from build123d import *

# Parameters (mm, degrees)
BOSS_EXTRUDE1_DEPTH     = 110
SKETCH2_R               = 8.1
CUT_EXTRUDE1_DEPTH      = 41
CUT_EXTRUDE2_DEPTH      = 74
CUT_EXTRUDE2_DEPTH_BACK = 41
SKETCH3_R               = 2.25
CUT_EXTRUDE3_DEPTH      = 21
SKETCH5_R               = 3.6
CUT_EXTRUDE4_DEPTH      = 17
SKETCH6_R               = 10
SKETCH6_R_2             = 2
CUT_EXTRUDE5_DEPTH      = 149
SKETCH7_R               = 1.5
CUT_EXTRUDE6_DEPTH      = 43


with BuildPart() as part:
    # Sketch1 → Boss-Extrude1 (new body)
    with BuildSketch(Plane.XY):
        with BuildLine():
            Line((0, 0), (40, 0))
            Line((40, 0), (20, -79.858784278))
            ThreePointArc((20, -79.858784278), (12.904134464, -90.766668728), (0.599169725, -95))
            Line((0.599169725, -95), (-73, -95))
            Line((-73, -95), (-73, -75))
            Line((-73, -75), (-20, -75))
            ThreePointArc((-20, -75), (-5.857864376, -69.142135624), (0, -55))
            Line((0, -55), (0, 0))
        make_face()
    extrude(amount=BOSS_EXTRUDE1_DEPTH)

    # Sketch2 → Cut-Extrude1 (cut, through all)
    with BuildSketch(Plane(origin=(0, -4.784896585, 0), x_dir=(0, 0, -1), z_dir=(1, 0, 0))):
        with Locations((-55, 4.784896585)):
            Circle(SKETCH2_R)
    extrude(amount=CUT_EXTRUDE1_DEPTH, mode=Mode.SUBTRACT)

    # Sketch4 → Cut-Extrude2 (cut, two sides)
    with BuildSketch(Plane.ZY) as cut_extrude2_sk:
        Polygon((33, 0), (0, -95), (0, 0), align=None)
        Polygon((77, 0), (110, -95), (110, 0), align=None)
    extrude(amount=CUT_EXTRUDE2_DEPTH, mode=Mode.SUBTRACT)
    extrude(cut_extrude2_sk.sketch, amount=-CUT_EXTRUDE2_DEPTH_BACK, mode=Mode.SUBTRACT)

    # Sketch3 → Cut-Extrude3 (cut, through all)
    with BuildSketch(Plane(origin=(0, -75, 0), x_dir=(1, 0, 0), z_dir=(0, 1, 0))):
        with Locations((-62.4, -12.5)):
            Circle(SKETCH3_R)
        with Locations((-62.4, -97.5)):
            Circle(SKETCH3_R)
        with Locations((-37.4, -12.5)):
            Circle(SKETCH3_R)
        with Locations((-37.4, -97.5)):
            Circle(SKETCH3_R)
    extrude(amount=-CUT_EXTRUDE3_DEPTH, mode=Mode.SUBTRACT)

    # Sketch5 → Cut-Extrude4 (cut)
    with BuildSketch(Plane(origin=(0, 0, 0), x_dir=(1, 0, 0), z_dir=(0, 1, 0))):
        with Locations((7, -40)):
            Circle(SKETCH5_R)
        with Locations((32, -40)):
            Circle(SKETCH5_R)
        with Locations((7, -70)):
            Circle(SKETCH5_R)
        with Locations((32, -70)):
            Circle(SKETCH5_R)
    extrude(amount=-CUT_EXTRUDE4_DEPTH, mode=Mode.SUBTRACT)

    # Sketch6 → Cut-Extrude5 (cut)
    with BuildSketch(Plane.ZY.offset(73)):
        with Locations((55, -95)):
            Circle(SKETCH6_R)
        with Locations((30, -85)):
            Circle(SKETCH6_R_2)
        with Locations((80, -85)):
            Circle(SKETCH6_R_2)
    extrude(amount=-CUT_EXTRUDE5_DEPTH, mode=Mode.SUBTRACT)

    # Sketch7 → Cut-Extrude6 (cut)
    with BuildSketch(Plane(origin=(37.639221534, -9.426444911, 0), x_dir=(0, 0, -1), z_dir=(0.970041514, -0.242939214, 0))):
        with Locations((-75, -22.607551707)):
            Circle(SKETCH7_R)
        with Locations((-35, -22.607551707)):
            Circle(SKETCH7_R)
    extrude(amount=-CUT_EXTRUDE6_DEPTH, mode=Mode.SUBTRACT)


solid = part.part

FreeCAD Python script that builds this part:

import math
import FreeCAD as App
import Part
import Sketcher
from FreeCAD import Vector
Q = App.Units.Quantity

doc = App.newDocument("Part")
params = doc.addObject("Spreadsheet::Sheet", "Params")
for row, (alias, value) in enumerate([
    ("sketch1_radius", "20 mm"),
    ("sketch1_width", "40 mm"),
    ("sketch1_width2", "53 mm"),
    ("sketch1_height", "55 mm"),
    ("pad1_length", "110 mm"),
    ("sketch2_diameter", "16.2 mm"),
    ("sketch3_width", "95 mm"),
    ("sketch3_height", "33 mm"),
    ("sketch4_diameter", "4.5 mm"),
    ("sketch5_diameter", "7.2 mm"),
    ("pocket4_length", "17 mm"),
    ("sketch6_diameter", "20 mm"),
    ("sketch6_diameter2", "4 mm"),
    ("pocket5_length", "149 mm"),
    ("sketch7_diameter", "3 mm"),
    ("pocket6_length", "43 mm"),
], start=1):
    params.set(f"A{row}", alias)
    params.set(f"B{row}", "=" + value)
    params.setAlias(f"B{row}", alias)

body = doc.addObject("PartDesign::Body", "Body")

sketch1 = doc.addObject("Sketcher::SketchObject", "Sketch")
body.addObject(sketch1)
sketch1.AttachmentSupport = (doc.XY_Plane, [""])
sketch1.MapMode = "FlatFace"
sketch1.addGeometry(Part.LineSegment(Vector(40, 0, 0), Vector(0, 0, 0)), False)
sketch1.addGeometry(Part.LineSegment(Vector(0, 0, 0), Vector(0, -55, 0)), False)
sketch1.addGeometry(Part.ArcOfCircle(Part.Circle(Vector(-20, -55, 0), Vector(0, 0, 1), 20), math.radians(-90), math.radians(0)), False)
sketch1.addGeometry(Part.LineSegment(Vector(-20, -75, 0), Vector(-73, -75, 0)), False)
sketch1.addGeometry(Part.LineSegment(Vector(-73, -75, 0), Vector(-73, -95, 0)), False)
sketch1.addGeometry(Part.LineSegment(Vector(-73, -95, 0), Vector(1, -95, 0)), False)
sketch1.addGeometry(Part.ArcOfCircle(Part.Circle(Vector(1, -75, 0), Vector(0, 0, 1), 20), math.radians(-90), math.radians(-14)), False)
sketch1.addGeometry(Part.LineSegment(Vector(20, -80, 0), Vector(40, 0, 0)), False)
sketch1.addConstraint(Sketcher.Constraint("Coincident", 0, 2, 1, 1))
sketch1.addConstraint(Sketcher.Constraint("Tangent", 1, 2, 2, 2))
sketch1.addConstraint(Sketcher.Constraint("Tangent", 2, 1, 3, 1))
sketch1.addConstraint(Sketcher.Constraint("Coincident", 3, 2, 4, 1))
sketch1.addConstraint(Sketcher.Constraint("Coincident", 4, 2, 5, 1))
sketch1.addConstraint(Sketcher.Constraint("Tangent", 5, 2, 6, 1))
sketch1.addConstraint(Sketcher.Constraint("Tangent", 6, 2, 7, 1))
sketch1.addConstraint(Sketcher.Constraint("Coincident", 7, 2, 0, 1))
sketch1.addConstraint(Sketcher.Constraint("Horizontal", 0))
sketch1.addConstraint(Sketcher.Constraint("Vertical", 1))
sketch1.addConstraint(Sketcher.Constraint("Horizontal", 3))
sketch1.addConstraint(Sketcher.Constraint("Vertical", 4))
sketch1.addConstraint(Sketcher.Constraint("Horizontal", 5))
sketch1.addConstraint(Sketcher.Constraint("Coincident", 0, 2, -1, 1))
sketch1.addConstraint(Sketcher.Constraint("Equal", 2, 6))
sketch1.addConstraint(Sketcher.Constraint("Horizontal", 6, 3, 2, 1))
sketch1.addConstraint(Sketcher.Constraint("Radius", 2, Q("20 mm")))
sketch1.addConstraint(Sketcher.Constraint("DistanceX", 0, 2, 0, 1, Q("40 mm")))
sketch1.addConstraint(Sketcher.Constraint("DistanceX", 3, 2, 3, 1, Q("53 mm")))
sketch1.addConstraint(Sketcher.Constraint("DistanceY", 1, 2, 1, 1, Q("55 mm")))
sketch1.addConstraint(Sketcher.Constraint("DistanceX", -1, 1, 6, 2, Q("20 mm")))
sketch1.setExpression("Constraints[16]", "Params.sketch1_radius")
sketch1.setExpression("Constraints[17]", "Params.sketch1_width")
sketch1.setExpression("Constraints[18]", "Params.sketch1_width2")
sketch1.setExpression("Constraints[19]", "Params.sketch1_height")
pad1 = doc.addObject("PartDesign::Pad", "Pad")
body.addObject(pad1)
pad1.Profile = sketch1
pad1.setExpression("Length", "Params.pad1_length")

sketch2 = doc.addObject("Sketcher::SketchObject", "Sketch001")
body.addObject(sketch2)
sketch2.AttachmentSupport = (doc.YZ_Plane, [""])
sketch2.MapMode = "FlatFace"
sketch2.addGeometry(Part.Circle(Vector(0, 55, 0), Vector(0, 0, 1), 8), False)
sketch2.addConstraint(Sketcher.Constraint("PointOnObject", 0, 3, -2))
sketch2.addConstraint(Sketcher.Constraint("Diameter", 0, Q("16.2 mm")))
sketch2.addConstraint(Sketcher.Constraint("DistanceY", -1, 1, 0, 3, Q("55 mm")))
sketch2.setExpression("Constraints[1]", "Params.sketch2_diameter")
pocket1 = doc.addObject("PartDesign::Pocket", "Pocket")
body.addObject(pocket1)
pocket1.Profile = sketch2
pocket1.Type = "ThroughAll"
pocket1.Reversed = True

sketch3 = doc.addObject("Sketcher::SketchObject", "Sketch002")
body.addObject(sketch3)
sketch3.AttachmentSupport = (doc.YZ_Plane, [""])
sketch3.MapMode = "FlatFace"
sketch3.addGeometry(Part.LineSegment(Vector(-95, 0, 0), Vector(0, 33, 0)), False)
sketch3.addGeometry(Part.LineSegment(Vector(0, 33, 0), Vector(0, 0, 0)), False)
sketch3.addGeometry(Part.LineSegment(Vector(0, 0, 0), Vector(-95, 0, 0)), False)
sketch3.addGeometry(Part.LineSegment(Vector(0, 77, 0), Vector(-95, 110, 0)), False)
sketch3.addGeometry(Part.LineSegment(Vector(-95, 110, 0), Vector(0, 110, 0)), False)
sketch3.addGeometry(Part.LineSegment(Vector(0, 110, 0), Vector(0, 77, 0)), False)
sketch3.addConstraint(Sketcher.Constraint("Coincident", 0, 2, 1, 1))
sketch3.addConstraint(Sketcher.Constraint("Coincident", 1, 2, 2, 1))
sketch3.addConstraint(Sketcher.Constraint("Coincident", 2, 2, 0, 1))
sketch3.addConstraint(Sketcher.Constraint("Coincident", 3, 2, 4, 1))
sketch3.addConstraint(Sketcher.Constraint("Coincident", 4, 2, 5, 1))
sketch3.addConstraint(Sketcher.Constraint("Coincident", 5, 2, 3, 1))
sketch3.addConstraint(Sketcher.Constraint("Vertical", 1))
sketch3.addConstraint(Sketcher.Constraint("Horizontal", 2))
sketch3.addConstraint(Sketcher.Constraint("Horizontal", 4))
sketch3.addConstraint(Sketcher.Constraint("Vertical", 5))
sketch3.addConstraint(Sketcher.Constraint("Coincident", 1, 2, -1, 1))
sketch3.addConstraint(Sketcher.Constraint("PointOnObject", 4, 2, -2))
sketch3.addConstraint(Sketcher.Constraint("Vertical", 2, 2, 3, 2))
sketch3.addConstraint(Sketcher.Constraint("Equal", 1, 5))
sketch3.addConstraint(Sketcher.Constraint("DistanceX", 2, 2, 2, 1, Q("95 mm")))
sketch3.addConstraint(Sketcher.Constraint("DistanceY", 1, 2, 1, 1, Q("33 mm")))
sketch3.addConstraint(Sketcher.Constraint("DistanceY", -1, 1, 3, 2, Q("110 mm")))
sketch3.setExpression("Constraints[14]", "Params.sketch3_width")
sketch3.setExpression("Constraints[15]", "Params.sketch3_height")
pocket2 = doc.addObject("PartDesign::Pocket", "Pocket001")
body.addObject(pocket2)
pocket2.Profile = sketch3
pocket2.Type = "ThroughAll"
pocket2.Midplane = True

sketch4 = doc.addObject("Sketcher::SketchObject", "Sketch003")
body.addObject(sketch4)
sketch4.AttachmentSupport = (doc.XZ_Plane, [""])
sketch4.MapMode = "FlatFace"
sketch4.AttachmentOffset = App.Placement(Vector(0, 0, 75), App.Rotation())
sketch4.addGeometry(Part.Circle(Vector(-62.4, 12.5, 0), Vector(0, 0, 1), 2.2), False)
sketch4.addGeometry(Part.Circle(Vector(-62.4, 97.5, 0), Vector(0, 0, 1), 2.2), False)
sketch4.addGeometry(Part.Circle(Vector(-37.4, 12.5, 0), Vector(0, 0, 1), 2.2), False)
sketch4.addGeometry(Part.Circle(Vector(-37.4, 97.5, 0), Vector(0, 0, 1), 2.2), False)
sketch4.addConstraint(Sketcher.Constraint("Equal", 0, 1))
sketch4.addConstraint(Sketcher.Constraint("Equal", 1, 2))
sketch4.addConstraint(Sketcher.Constraint("Equal", 2, 3))
sketch4.addConstraint(Sketcher.Constraint("Horizontal", 0, 3, 2, 3))
sketch4.addConstraint(Sketcher.Constraint("Horizontal", 1, 3, 3, 3))
sketch4.addConstraint(Sketcher.Constraint("Vertical", 0, 3, 1, 3))
sketch4.addConstraint(Sketcher.Constraint("Vertical", 2, 3, 3, 3))
sketch4.addConstraint(Sketcher.Constraint("Diameter", 0, Q("4.5 mm")))
sketch4.addConstraint(Sketcher.Constraint("DistanceY", 0, 3, 1, 3, Q("85 mm")))
sketch4.addConstraint(Sketcher.Constraint("DistanceX", 0, 3, 2, 3, Q("25 mm")))
sketch4.addConstraint(Sketcher.Constraint("DistanceX", 0, 3, -1, 1, Q("62.4 mm")))
sketch4.addConstraint(Sketcher.Constraint("DistanceY", -1, 1, 0, 3, Q("12.5 mm")))
sketch4.setExpression("Constraints[7]", "Params.sketch4_diameter")
pocket3 = doc.addObject("PartDesign::Pocket", "Pocket002")
body.addObject(pocket3)
pocket3.Profile = sketch4
pocket3.Type = "ThroughAll"
pocket3.Reversed = True

sketch5 = doc.addObject("Sketcher::SketchObject", "Sketch004")
body.addObject(sketch5)
sketch5.AttachmentSupport = (doc.XZ_Plane, [""])
sketch5.MapMode = "FlatFace"
sketch5.addGeometry(Part.Circle(Vector(7, 40, 0), Vector(0, 0, 1), 3.6), False)
sketch5.addGeometry(Part.Circle(Vector(32, 40, 0), Vector(0, 0, 1), 3.6), False)
sketch5.addGeometry(Part.Circle(Vector(7, 70, 0), Vector(0, 0, 1), 3.6), False)
sketch5.addGeometry(Part.Circle(Vector(32, 70, 0), Vector(0, 0, 1), 3.6), False)
sketch5.addConstraint(Sketcher.Constraint("Equal", 0, 1))
sketch5.addConstraint(Sketcher.Constraint("Equal", 1, 2))
sketch5.addConstraint(Sketcher.Constraint("Equal", 2, 3))
sketch5.addConstraint(Sketcher.Constraint("Horizontal", 0, 3, 1, 3))
sketch5.addConstraint(Sketcher.Constraint("Horizontal", 2, 3, 3, 3))
sketch5.addConstraint(Sketcher.Constraint("Vertical", 0, 3, 2, 3))
sketch5.addConstraint(Sketcher.Constraint("Vertical", 1, 3, 3, 3))
sketch5.addConstraint(Sketcher.Constraint("Diameter", 0, Q("7.2 mm")))
sketch5.addConstraint(Sketcher.Constraint("DistanceX", -1, 1, 0, 3, Q("7 mm")))
sketch5.addConstraint(Sketcher.Constraint("DistanceY", -1, 1, 0, 3, Q("40 mm")))
sketch5.addConstraint(Sketcher.Constraint("DistanceX", -1, 1, 1, 3, Q("32 mm")))
sketch5.addConstraint(Sketcher.Constraint("DistanceY", -1, 1, 2, 3, Q("70 mm")))
sketch5.setExpression("Constraints[7]", "Params.sketch5_diameter")
pocket4 = doc.addObject("PartDesign::Pocket", "Pocket003")
body.addObject(pocket4)
pocket4.Profile = sketch5
pocket4.setExpression("Length", "Params.pocket4_length")
pocket4.Reversed = True

sketch6 = doc.addObject("Sketcher::SketchObject", "Sketch005")
body.addObject(sketch6)
sketch6.AttachmentSupport = (doc.YZ_Plane, [""])
sketch6.MapMode = "FlatFace"
sketch6.AttachmentOffset = App.Placement(Vector(0, 0, -73), App.Rotation())
sketch6.addGeometry(Part.Circle(Vector(-95, 55, 0), Vector(0, 0, 1), 10), False)
sketch6.addGeometry(Part.Circle(Vector(-85, 30, 0), Vector(0, 0, 1), 2), False)
sketch6.addGeometry(Part.Circle(Vector(-85, 80, 0), Vector(0, 0, 1), 2), False)
sketch6.addConstraint(Sketcher.Constraint("Equal", 1, 2))
sketch6.addConstraint(Sketcher.Constraint("Vertical", 1, 3, 2, 3))
sketch6.addConstraint(Sketcher.Constraint("Diameter", 0, Q("20 mm")))
sketch6.addConstraint(Sketcher.Constraint("Diameter", 1, Q("4 mm")))
sketch6.addConstraint(Sketcher.Constraint("DistanceX", 0, 3, -1, 1, Q("95 mm")))
sketch6.addConstraint(Sketcher.Constraint("DistanceY", -1, 1, 0, 3, Q("55 mm")))
sketch6.addConstraint(Sketcher.Constraint("DistanceX", 1, 3, -1, 1, Q("85 mm")))
sketch6.addConstraint(Sketcher.Constraint("DistanceY", -1, 1, 1, 3, Q("30 mm")))
sketch6.addConstraint(Sketcher.Constraint("DistanceY", -1, 1, 2, 3, Q("80 mm")))
sketch6.setExpression("Constraints[2]", "Params.sketch6_diameter")
sketch6.setExpression("Constraints[3]", "Params.sketch6_diameter2")
pocket5 = doc.addObject("PartDesign::Pocket", "Pocket004")
body.addObject(pocket5)
pocket5.Profile = sketch6
pocket5.setExpression("Length", "Params.pocket5_length")
pocket5.Reversed = True

sketch7 = doc.addObject("Sketcher::SketchObject", "Sketch006")
body.addObject(sketch7)
sketch7.Placement = App.Placement(Vector(37.639222, -9.426445, 0), App.Rotation(Vector(0, 0, -1), Vector(0.242939214, 0.970041514, 0), Vector(0.970041514, -0.242939214, 0), "ZXY"))
sketch7.addGeometry(Part.Circle(Vector(-75, -22.6, 0), Vector(0, 0, 1), 1.5), False)
sketch7.addGeometry(Part.Circle(Vector(-35, -22.6, 0), Vector(0, 0, 1), 1.5), False)
sketch7.addConstraint(Sketcher.Constraint("Equal", 0, 1))
sketch7.addConstraint(Sketcher.Constraint("Horizontal", 0, 3, 1, 3))
sketch7.addConstraint(Sketcher.Constraint("Diameter", 0, Q("3 mm")))
sketch7.addConstraint(Sketcher.Constraint("DistanceX", 0, 3, -1, 1, Q("75 mm")))
sketch7.addConstraint(Sketcher.Constraint("DistanceX", 1, 3, -1, 1, Q("35 mm")))
sketch7.addConstraint(Sketcher.Constraint("DistanceY", 0, 3, -1, 1, Q("22.607552 mm")))
sketch7.setExpression("Constraints[2]", "Params.sketch7_diameter")
pocket6 = doc.addObject("PartDesign::Pocket", "Pocket005")
body.addObject(pocket6)
pocket6.Profile = sketch7
pocket6.setExpression("Length", "Params.pocket6_length")

doc.recompute()
